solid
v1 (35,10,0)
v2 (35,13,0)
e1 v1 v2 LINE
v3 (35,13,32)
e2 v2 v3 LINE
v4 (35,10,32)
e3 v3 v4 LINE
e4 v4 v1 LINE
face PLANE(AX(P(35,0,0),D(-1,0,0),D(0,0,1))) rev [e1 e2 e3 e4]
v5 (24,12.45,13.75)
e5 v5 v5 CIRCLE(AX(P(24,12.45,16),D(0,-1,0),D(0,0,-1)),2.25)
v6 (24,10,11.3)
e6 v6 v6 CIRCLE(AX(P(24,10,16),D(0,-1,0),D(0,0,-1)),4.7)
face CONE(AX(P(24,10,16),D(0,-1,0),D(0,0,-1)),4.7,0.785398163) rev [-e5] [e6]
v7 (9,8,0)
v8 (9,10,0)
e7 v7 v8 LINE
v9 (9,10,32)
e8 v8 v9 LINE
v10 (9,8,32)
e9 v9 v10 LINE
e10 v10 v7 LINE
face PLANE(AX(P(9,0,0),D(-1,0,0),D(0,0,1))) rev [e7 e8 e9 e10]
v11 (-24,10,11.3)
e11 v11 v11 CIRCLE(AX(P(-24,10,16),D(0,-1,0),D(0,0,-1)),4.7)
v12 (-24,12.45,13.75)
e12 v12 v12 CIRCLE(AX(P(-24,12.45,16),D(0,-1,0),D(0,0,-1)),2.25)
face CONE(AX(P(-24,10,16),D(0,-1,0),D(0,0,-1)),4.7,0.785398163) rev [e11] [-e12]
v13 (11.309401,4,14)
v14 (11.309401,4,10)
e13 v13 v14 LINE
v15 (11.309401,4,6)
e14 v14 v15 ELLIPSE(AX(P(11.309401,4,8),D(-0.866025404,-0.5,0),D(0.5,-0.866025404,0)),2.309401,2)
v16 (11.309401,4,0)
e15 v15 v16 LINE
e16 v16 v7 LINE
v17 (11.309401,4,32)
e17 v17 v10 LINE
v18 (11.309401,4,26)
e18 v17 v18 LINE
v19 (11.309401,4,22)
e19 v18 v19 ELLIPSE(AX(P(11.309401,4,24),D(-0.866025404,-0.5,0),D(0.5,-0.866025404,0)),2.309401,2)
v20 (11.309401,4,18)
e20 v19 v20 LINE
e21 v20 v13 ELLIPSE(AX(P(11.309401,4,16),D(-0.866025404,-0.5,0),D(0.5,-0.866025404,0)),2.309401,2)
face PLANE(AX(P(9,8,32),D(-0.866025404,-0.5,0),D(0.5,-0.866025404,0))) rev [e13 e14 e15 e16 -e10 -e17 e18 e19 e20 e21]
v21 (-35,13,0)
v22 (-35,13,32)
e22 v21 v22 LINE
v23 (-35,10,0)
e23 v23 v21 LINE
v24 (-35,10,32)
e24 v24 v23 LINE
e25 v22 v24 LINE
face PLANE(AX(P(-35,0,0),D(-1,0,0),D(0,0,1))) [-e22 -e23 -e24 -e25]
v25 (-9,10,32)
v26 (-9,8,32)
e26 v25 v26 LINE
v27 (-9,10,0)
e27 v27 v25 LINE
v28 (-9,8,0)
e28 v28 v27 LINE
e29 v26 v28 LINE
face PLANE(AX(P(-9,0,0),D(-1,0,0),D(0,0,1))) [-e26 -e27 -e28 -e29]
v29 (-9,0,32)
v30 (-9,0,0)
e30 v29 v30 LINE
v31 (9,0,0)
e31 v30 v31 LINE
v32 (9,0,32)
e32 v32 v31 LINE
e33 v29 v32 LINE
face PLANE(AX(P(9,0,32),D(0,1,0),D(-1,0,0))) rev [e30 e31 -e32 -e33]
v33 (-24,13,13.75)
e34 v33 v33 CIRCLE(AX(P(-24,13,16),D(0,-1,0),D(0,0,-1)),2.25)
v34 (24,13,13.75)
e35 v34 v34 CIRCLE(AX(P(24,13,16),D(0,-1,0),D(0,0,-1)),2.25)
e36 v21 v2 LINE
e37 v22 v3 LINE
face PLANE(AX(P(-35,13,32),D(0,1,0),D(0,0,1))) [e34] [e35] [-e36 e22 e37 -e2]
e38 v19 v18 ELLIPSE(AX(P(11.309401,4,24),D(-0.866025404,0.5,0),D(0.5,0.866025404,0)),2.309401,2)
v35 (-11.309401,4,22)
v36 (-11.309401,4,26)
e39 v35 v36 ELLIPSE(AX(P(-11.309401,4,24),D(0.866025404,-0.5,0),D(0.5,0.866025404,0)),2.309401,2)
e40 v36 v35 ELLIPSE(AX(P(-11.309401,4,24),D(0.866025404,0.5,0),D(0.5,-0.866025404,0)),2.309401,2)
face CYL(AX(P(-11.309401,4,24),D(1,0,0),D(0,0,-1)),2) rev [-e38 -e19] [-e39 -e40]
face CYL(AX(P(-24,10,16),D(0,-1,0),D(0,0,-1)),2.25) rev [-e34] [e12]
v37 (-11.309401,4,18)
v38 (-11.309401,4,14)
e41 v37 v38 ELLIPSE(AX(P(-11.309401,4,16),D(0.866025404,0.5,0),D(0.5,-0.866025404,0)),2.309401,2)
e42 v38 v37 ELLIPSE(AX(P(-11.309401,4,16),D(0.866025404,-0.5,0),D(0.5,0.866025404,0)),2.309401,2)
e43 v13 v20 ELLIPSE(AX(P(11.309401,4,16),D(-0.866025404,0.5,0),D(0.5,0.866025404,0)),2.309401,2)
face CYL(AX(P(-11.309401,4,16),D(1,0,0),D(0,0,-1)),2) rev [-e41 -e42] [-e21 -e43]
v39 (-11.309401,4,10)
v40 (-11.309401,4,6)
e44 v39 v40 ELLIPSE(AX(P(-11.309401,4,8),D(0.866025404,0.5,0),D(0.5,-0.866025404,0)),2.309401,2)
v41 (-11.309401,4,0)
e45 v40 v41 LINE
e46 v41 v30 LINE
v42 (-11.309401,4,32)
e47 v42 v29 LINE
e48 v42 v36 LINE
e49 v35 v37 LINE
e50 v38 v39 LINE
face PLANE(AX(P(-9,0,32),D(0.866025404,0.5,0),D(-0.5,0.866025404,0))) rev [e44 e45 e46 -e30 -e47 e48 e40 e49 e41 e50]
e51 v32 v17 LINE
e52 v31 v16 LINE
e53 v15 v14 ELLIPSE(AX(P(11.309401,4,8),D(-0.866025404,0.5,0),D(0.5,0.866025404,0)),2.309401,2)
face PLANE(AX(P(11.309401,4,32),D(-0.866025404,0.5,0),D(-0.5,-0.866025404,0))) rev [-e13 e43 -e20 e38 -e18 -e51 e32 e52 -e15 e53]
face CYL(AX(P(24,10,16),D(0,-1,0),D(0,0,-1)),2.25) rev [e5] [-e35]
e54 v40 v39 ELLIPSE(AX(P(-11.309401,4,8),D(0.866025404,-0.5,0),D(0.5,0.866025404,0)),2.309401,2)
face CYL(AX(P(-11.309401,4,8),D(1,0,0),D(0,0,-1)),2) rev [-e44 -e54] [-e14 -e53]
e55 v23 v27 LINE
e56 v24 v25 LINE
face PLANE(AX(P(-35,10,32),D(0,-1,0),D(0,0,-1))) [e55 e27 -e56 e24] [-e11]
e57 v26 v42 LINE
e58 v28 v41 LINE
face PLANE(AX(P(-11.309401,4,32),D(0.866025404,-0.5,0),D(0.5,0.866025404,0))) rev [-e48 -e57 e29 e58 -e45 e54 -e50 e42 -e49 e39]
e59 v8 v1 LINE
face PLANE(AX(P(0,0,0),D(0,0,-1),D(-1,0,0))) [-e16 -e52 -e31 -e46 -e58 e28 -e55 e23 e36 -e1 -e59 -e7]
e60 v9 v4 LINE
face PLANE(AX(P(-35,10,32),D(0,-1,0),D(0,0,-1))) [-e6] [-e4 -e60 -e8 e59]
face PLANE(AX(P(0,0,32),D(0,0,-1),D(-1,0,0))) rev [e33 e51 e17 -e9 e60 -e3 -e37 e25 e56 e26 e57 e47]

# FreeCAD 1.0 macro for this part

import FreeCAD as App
import Part
import Sketcher

V = App.Vector
Q = App.Units.Quantity

doc = App.newDocument("Part")
params = doc.addObject("Spreadsheet::Sheet", "Params")
for row, (alias, value) in enumerate([
    ("sketch1_width", "18 mm"),
    ("pad1_length", "32 mm"),
    ("sketch2_diameter", "4 mm"),
    ("pocket1_length", "71.739589 mm"),
    ("linearpattern_pitch", "8 mm"),
    ("sketch3_width", "2 mm"),
    ("sketch3_height", "32 mm"),
    ("pad2_length", "9 mm"),
    ("pad2_length2", "9 mm"),
    ("sketch4_width", "3 mm"),
    ("sketch4_height", "32 mm"),
    ("pad3_length", "35 mm"),
    ("pad3_length2", "35 mm"),
    ("sketch5_width", "3 mm"),
    ("sketch5_height", "4.7 mm"),
    ("sketch5_width2", "0.55 mm"),
    ("groove_angle", "360 deg"),
    ("linearpattern2_pitch", "48 mm"),
], start=1):
    params.set(f"A{row}", alias)
    params.set(f"B{row}", "=" + value)
    params.setAlias(f"B{row}", alias)

body = doc.addObject("PartDesign::Body", "Body")

# Sketch on XY plane
sketch1 = body.newObject("Sketcher::SketchObject", "Sketch")
sketch1.AttachmentSupport = (doc.getObject("XY_Plane"), [""])
sketch1.MapMode = "FlatFace"
sketch1.addGeometry([
    Part.LineSegment(V(-9, 0, 0), V(9, 0, 0)),  # 0
    Part.LineSegment(V(9, 0, 0), V(11.3, 4, 0)),  # 1
    Part.LineSegment(V(11.3, 4, 0), V(9, 8, 0)),  # 2
    Part.LineSegment(V(9, 8, 0), V(-9, 8, 0)),  # 3
    Part.LineSegment(V(-9, 8, 0), V(-11.3, 4, 0)),  # 4
    Part.LineSegment(V(-11.3, 4, 0), V(-9, 0, 0)),  # 5
], False)
sketch1.addConstraint([
    Sketcher.Constraint("Coincident", 0, 2, 1, 1),
    Sketcher.Constraint("Coincident", 1, 2, 2, 1),
    Sketcher.Constraint("Coincident", 2, 2, 3, 1),
    Sketcher.Constraint("Coincident", 3, 2, 4, 1),
    Sketcher.Constraint("Coincident", 4, 2, 5, 1),
    Sketcher.Constraint("Coincident", 5, 2, 0, 1),
    Sketcher.Constraint("Horizontal", 0),
    Sketcher.Constraint("Horizontal", 3),
    Sketcher.Constraint("Symmetric", 0, 2, 5, 2, -1, 1),
    Sketcher.Constraint("Symmetric", 1, 2, 4, 2, -2),
    Sketcher.Constraint("Parallel", 1, 4),
    Sketcher.Constraint("Parallel", 2, 5),
    Sketcher.Constraint("Vertical", 0, 2, 2, 2),
    Sketcher.Constraint("DistanceX", 0, 1, 0, 2, Q("18 mm")),
    Sketcher.Constraint("Angle", 1, Q("60 deg")),
    Sketcher.Constraint("DistanceY", -1, 1, 1, 2, Q("4 mm")),
])
sketch1.setExpression("Constraints[13]", "Params.sketch1_width")
pad1 = body.newObject("PartDesign::Pad", "Pad")
pad1.Profile = sketch1
pad1.setExpression("Length", "Params.pad1_length")

# Sketch on YZ plane
sketch2 = body.newObject("Sketcher::SketchObject", "Sketch001")
sketch2.AttachmentSupport = (doc.getObject("YZ_Plane"), [""])
sketch2.MapMode = "FlatFace"
sketch2.addGeometry(Part.Circle(V(4, 24, 0), V(0, 0, 1), 2), False)
sketch2.addConstraint([
    Sketcher.Constraint("Diameter", 0, Q("4 mm")),
    Sketcher.Constraint("DistanceX", -1, 1, 0, 3, Q("4 mm")),
    Sketcher.Constraint("DistanceY", -1, 1, 0, 3, Q("24 mm")),
])
sketch2.setExpression("Constraints[0]", "Params.sketch2_diameter")
pocket1 = body.newObject("PartDesign::Pocket", "Pocket")
pocket1.Profile = sketch2
pocket1.setExpression("Length", "Params.pocket1_length")
pocket1.Midplane = True
doc.recompute()

linearpattern = body.newObject("PartDesign::LinearPattern", "LinearPattern")
linearpattern.Originals = [pocket1]
linearpattern.Direction = (doc.getObject("Z_Axis"), [""])
linearpattern.Mode = "offset"
linearpattern.setExpression("Offset", "Params.linearpattern_pitch")
linearpattern.Occurrences = 3
linearpattern.Reversed = True
body.Tip = linearpattern

# Sketch on YZ plane
sketch3 = body.newObject("Sketcher::SketchObject", "Sketch002")
sketch3.AttachmentSupport = (doc.getObject("YZ_Plane"), [""])
sketch3.MapMode = "FlatFace"
sketch3.addGeometry([
    Part.LineSegment(V(10, 32, 0), V(8, 32, 0)),
    Part.LineSegment(V(8, 32, 0), V(8, 0, 0)),
    Part.LineSegment(V(8, 0, 0), V(10, 0, 0)),
    Part.LineSegment(V(10, 0, 0), V(10, 32, 0)),
], False)
sketch3.addConstraint([
    Sketcher.Constraint("Coincident", 0, 2, 1, 1),
    Sketcher.Constraint("Coincident", 1, 2, 2, 1),
    Sketcher.Constraint("Coincident", 2, 2, 3, 1),
    Sketcher.Constraint("Coincident", 3, 2, 0, 1),
    Sketcher.Constraint("Horizontal", 0),
    Sketcher.Constraint("Vertical", 1),
    Sketcher.Constraint("Horizontal", 2),
    Sketcher.Constraint("Vertical", 3),
    Sketcher.Constraint("PointOnObject", 1, 2, -1),
    Sketcher.Constraint("DistanceX", 0, 2, 0, 1, Q("2 mm")),
    Sketcher.Constraint("DistanceY", 1, 2, 1, 1, Q("32 mm")),
    Sketcher.Constraint("DistanceX", -1, 1, 0, 2, Q("8 mm")),
])
sketch3.setExpression("Constraints[9]", "Params.sketch3_width")
sketch3.setExpression("Constraints[10]", "Params.sketch3_height")
pad2 = body.newObject("PartDesign::Pad", "Pad001")
pad2.Profile = sketch3
pad2.Type = "TwoLengths"
pad2.setExpression("Length", "Params.pad2_length")
pad2.setExpression("Length2", "Params.pad2_length2")

# Sketch on YZ plane
sketch4 = body.newObject("Sketcher::SketchObject", "Sketch003")
sketch4.AttachmentSupport = (doc.getObject("YZ_Plane"), [""])
sketch4.MapMode = "FlatFace"
sketch4.addGeometry([
    Part.LineSegment(V(13, 32, 0), V(10, 32, 0)),
    Part.LineSegment(V(10, 32, 0), V(10, 0, 0)),
    Part.LineSegment(V(10, 0, 0), V(13, 0, 0)),
    Part.LineSegment(V(13, 0, 0), V(13, 32, 0)),
], False)
sketch4.addConstraint([
    Sketcher.Constraint("Coincident", 0, 2, 1, 1),
    Sketcher.Constraint("Coincident", 1, 2, 2, 1),
    Sketcher.Constraint("Coincident", 2, 2, 3, 1),
    Sketcher.Constraint("Coincident", 3, 2, 0, 1),
    Sketcher.Constraint("Horizontal", 0),
    Sketcher.Constraint("Vertical", 1),
    Sketcher.Constraint("Horizontal", 2),
    Sketcher.Constraint("Vertical", 3),
    Sketcher.Constraint("PointOnObject", 1, 2, -1),
    Sketcher.Constraint("DistanceX", 0, 2, 0, 1, Q("3 mm")),
    Sketcher.Constraint("DistanceY", 1, 2, 1, 1, Q("32 mm")),
    Sketcher.Constraint("DistanceX", -1, 1, 0, 2, Q("10 mm")),
])
sketch4.setExpression("Constraints[9]", "Params.sketch4_width")
sketch4.setExpression("Constraints[10]", "Params.sketch4_height")
pad3 = body.newObject("PartDesign::Pad", "Pad002")
pad3.Profile = sketch4
pad3.Type = "TwoLengths"
pad3.setExpression("Length", "Params.pad3_length")
pad3.setExpression("Length2", "Params.pad3_length2")

# Sketch on YZ plane
sketch5 = body.newObject("Sketcher::SketchObject", "Sketch004")
sketch5.AttachmentSupport = (doc.getObject("YZ_Plane"), [""])
sketch5.MapMode = "FlatFace"
sketch5.AttachmentOffset = App.Placement(V(0, 0, 24), App.Rotation())
sketch5.addGeometry([
    Part.LineSegment(V(13, 16, 0), V(10, 16, 0)),  # 0
    Part.LineSegment(V(10, 16, 0), V(10, 11.3, 0)),  # 1
    Part.LineSegment(V(10, 11.3, 0), V(12.4, 13.8, 0)),  # 2
    Part.LineSegment(V(12.4, 13.8, 0), V(13, 13.8, 0)),  # 3
    Part.LineSegment(V(13, 13.8, 0), V(13, 16, 0)),  # 4
], False)
sketch5.addGeometry(Part.LineSegment(V(10, 16, 0), V(13, 16, 0)), True)  # axis
sketch5.addConstraint([
    Sketcher.Constraint("Coincident", 0, 2, 1, 1),
    Sketcher.Constraint("Coincident", 1, 2, 2, 1),
    Sketcher.Constraint("Coincident", 2, 2, 3, 1),
    Sketcher.Constraint("Coincident", 3, 2, 4, 1),
    Sketcher.Constraint("Coincident", 4, 2, 0, 1),
    Sketcher.Constraint("Horizontal", 0),
    Sketcher.Constraint("Vertical", 1),
    Sketcher.Constraint("Horizontal", 3),
    Sketcher.Constraint("Vertical", 4),
    Sketcher.Constraint("Horizontal", 5),
    Sketcher.Constraint("Coincident", 5, 1, 0, 2),
    Sketcher.Constraint("Vertical", 3, 2, 5, 2),
    Sketcher.Constraint("DistanceX", 0, 2, 0, 1, Q("3 mm")),
    Sketcher.Constraint("Angle", 2, Q("45 deg")),
    Sketcher.Constraint("DistanceY", 1, 2, 1, 1, Q("4.7 mm")),
    Sketcher.Constraint("DistanceX", -1, 1, 0, 2, Q("10 mm")),
    Sketcher.Constraint("DistanceY", -1, 1, 0, 2, Q("16 mm")),
    Sketcher.Constraint("DistanceX", 3, 1, 3, 2, Q("0.55 mm")),
])
sketch5.setExpression("Constraints[12]", "Params.sketch5_width")
sketch5.setExpression("Constraints[14]", "Params.sketch5_height")
sketch5.setExpression("Constraints[17]", "Params.sketch5_width2")
groove = body.newObject("PartDesign::Groove", "Groove")
groove.Profile = sketch5
groove.ReferenceAxis = (sketch5, ["Axis0"])
groove.setExpression("Angle", "Params.groove_angle")
doc.recompute()

linearpattern2 = body.newObject("PartDesign::LinearPattern", "LinearPattern001")
linearpattern2.Originals = [groove]
linearpattern2.Direction = (doc.getObject("X_Axis"), [""])
linearpattern2.Mode = "offset"
linearpattern2.setExpression("Offset", "Params.linearpattern2_pitch")
linearpattern2.Occurrences = 2
linearpattern2.Reversed = True
body.Tip = linearpattern2

doc.recompute()
